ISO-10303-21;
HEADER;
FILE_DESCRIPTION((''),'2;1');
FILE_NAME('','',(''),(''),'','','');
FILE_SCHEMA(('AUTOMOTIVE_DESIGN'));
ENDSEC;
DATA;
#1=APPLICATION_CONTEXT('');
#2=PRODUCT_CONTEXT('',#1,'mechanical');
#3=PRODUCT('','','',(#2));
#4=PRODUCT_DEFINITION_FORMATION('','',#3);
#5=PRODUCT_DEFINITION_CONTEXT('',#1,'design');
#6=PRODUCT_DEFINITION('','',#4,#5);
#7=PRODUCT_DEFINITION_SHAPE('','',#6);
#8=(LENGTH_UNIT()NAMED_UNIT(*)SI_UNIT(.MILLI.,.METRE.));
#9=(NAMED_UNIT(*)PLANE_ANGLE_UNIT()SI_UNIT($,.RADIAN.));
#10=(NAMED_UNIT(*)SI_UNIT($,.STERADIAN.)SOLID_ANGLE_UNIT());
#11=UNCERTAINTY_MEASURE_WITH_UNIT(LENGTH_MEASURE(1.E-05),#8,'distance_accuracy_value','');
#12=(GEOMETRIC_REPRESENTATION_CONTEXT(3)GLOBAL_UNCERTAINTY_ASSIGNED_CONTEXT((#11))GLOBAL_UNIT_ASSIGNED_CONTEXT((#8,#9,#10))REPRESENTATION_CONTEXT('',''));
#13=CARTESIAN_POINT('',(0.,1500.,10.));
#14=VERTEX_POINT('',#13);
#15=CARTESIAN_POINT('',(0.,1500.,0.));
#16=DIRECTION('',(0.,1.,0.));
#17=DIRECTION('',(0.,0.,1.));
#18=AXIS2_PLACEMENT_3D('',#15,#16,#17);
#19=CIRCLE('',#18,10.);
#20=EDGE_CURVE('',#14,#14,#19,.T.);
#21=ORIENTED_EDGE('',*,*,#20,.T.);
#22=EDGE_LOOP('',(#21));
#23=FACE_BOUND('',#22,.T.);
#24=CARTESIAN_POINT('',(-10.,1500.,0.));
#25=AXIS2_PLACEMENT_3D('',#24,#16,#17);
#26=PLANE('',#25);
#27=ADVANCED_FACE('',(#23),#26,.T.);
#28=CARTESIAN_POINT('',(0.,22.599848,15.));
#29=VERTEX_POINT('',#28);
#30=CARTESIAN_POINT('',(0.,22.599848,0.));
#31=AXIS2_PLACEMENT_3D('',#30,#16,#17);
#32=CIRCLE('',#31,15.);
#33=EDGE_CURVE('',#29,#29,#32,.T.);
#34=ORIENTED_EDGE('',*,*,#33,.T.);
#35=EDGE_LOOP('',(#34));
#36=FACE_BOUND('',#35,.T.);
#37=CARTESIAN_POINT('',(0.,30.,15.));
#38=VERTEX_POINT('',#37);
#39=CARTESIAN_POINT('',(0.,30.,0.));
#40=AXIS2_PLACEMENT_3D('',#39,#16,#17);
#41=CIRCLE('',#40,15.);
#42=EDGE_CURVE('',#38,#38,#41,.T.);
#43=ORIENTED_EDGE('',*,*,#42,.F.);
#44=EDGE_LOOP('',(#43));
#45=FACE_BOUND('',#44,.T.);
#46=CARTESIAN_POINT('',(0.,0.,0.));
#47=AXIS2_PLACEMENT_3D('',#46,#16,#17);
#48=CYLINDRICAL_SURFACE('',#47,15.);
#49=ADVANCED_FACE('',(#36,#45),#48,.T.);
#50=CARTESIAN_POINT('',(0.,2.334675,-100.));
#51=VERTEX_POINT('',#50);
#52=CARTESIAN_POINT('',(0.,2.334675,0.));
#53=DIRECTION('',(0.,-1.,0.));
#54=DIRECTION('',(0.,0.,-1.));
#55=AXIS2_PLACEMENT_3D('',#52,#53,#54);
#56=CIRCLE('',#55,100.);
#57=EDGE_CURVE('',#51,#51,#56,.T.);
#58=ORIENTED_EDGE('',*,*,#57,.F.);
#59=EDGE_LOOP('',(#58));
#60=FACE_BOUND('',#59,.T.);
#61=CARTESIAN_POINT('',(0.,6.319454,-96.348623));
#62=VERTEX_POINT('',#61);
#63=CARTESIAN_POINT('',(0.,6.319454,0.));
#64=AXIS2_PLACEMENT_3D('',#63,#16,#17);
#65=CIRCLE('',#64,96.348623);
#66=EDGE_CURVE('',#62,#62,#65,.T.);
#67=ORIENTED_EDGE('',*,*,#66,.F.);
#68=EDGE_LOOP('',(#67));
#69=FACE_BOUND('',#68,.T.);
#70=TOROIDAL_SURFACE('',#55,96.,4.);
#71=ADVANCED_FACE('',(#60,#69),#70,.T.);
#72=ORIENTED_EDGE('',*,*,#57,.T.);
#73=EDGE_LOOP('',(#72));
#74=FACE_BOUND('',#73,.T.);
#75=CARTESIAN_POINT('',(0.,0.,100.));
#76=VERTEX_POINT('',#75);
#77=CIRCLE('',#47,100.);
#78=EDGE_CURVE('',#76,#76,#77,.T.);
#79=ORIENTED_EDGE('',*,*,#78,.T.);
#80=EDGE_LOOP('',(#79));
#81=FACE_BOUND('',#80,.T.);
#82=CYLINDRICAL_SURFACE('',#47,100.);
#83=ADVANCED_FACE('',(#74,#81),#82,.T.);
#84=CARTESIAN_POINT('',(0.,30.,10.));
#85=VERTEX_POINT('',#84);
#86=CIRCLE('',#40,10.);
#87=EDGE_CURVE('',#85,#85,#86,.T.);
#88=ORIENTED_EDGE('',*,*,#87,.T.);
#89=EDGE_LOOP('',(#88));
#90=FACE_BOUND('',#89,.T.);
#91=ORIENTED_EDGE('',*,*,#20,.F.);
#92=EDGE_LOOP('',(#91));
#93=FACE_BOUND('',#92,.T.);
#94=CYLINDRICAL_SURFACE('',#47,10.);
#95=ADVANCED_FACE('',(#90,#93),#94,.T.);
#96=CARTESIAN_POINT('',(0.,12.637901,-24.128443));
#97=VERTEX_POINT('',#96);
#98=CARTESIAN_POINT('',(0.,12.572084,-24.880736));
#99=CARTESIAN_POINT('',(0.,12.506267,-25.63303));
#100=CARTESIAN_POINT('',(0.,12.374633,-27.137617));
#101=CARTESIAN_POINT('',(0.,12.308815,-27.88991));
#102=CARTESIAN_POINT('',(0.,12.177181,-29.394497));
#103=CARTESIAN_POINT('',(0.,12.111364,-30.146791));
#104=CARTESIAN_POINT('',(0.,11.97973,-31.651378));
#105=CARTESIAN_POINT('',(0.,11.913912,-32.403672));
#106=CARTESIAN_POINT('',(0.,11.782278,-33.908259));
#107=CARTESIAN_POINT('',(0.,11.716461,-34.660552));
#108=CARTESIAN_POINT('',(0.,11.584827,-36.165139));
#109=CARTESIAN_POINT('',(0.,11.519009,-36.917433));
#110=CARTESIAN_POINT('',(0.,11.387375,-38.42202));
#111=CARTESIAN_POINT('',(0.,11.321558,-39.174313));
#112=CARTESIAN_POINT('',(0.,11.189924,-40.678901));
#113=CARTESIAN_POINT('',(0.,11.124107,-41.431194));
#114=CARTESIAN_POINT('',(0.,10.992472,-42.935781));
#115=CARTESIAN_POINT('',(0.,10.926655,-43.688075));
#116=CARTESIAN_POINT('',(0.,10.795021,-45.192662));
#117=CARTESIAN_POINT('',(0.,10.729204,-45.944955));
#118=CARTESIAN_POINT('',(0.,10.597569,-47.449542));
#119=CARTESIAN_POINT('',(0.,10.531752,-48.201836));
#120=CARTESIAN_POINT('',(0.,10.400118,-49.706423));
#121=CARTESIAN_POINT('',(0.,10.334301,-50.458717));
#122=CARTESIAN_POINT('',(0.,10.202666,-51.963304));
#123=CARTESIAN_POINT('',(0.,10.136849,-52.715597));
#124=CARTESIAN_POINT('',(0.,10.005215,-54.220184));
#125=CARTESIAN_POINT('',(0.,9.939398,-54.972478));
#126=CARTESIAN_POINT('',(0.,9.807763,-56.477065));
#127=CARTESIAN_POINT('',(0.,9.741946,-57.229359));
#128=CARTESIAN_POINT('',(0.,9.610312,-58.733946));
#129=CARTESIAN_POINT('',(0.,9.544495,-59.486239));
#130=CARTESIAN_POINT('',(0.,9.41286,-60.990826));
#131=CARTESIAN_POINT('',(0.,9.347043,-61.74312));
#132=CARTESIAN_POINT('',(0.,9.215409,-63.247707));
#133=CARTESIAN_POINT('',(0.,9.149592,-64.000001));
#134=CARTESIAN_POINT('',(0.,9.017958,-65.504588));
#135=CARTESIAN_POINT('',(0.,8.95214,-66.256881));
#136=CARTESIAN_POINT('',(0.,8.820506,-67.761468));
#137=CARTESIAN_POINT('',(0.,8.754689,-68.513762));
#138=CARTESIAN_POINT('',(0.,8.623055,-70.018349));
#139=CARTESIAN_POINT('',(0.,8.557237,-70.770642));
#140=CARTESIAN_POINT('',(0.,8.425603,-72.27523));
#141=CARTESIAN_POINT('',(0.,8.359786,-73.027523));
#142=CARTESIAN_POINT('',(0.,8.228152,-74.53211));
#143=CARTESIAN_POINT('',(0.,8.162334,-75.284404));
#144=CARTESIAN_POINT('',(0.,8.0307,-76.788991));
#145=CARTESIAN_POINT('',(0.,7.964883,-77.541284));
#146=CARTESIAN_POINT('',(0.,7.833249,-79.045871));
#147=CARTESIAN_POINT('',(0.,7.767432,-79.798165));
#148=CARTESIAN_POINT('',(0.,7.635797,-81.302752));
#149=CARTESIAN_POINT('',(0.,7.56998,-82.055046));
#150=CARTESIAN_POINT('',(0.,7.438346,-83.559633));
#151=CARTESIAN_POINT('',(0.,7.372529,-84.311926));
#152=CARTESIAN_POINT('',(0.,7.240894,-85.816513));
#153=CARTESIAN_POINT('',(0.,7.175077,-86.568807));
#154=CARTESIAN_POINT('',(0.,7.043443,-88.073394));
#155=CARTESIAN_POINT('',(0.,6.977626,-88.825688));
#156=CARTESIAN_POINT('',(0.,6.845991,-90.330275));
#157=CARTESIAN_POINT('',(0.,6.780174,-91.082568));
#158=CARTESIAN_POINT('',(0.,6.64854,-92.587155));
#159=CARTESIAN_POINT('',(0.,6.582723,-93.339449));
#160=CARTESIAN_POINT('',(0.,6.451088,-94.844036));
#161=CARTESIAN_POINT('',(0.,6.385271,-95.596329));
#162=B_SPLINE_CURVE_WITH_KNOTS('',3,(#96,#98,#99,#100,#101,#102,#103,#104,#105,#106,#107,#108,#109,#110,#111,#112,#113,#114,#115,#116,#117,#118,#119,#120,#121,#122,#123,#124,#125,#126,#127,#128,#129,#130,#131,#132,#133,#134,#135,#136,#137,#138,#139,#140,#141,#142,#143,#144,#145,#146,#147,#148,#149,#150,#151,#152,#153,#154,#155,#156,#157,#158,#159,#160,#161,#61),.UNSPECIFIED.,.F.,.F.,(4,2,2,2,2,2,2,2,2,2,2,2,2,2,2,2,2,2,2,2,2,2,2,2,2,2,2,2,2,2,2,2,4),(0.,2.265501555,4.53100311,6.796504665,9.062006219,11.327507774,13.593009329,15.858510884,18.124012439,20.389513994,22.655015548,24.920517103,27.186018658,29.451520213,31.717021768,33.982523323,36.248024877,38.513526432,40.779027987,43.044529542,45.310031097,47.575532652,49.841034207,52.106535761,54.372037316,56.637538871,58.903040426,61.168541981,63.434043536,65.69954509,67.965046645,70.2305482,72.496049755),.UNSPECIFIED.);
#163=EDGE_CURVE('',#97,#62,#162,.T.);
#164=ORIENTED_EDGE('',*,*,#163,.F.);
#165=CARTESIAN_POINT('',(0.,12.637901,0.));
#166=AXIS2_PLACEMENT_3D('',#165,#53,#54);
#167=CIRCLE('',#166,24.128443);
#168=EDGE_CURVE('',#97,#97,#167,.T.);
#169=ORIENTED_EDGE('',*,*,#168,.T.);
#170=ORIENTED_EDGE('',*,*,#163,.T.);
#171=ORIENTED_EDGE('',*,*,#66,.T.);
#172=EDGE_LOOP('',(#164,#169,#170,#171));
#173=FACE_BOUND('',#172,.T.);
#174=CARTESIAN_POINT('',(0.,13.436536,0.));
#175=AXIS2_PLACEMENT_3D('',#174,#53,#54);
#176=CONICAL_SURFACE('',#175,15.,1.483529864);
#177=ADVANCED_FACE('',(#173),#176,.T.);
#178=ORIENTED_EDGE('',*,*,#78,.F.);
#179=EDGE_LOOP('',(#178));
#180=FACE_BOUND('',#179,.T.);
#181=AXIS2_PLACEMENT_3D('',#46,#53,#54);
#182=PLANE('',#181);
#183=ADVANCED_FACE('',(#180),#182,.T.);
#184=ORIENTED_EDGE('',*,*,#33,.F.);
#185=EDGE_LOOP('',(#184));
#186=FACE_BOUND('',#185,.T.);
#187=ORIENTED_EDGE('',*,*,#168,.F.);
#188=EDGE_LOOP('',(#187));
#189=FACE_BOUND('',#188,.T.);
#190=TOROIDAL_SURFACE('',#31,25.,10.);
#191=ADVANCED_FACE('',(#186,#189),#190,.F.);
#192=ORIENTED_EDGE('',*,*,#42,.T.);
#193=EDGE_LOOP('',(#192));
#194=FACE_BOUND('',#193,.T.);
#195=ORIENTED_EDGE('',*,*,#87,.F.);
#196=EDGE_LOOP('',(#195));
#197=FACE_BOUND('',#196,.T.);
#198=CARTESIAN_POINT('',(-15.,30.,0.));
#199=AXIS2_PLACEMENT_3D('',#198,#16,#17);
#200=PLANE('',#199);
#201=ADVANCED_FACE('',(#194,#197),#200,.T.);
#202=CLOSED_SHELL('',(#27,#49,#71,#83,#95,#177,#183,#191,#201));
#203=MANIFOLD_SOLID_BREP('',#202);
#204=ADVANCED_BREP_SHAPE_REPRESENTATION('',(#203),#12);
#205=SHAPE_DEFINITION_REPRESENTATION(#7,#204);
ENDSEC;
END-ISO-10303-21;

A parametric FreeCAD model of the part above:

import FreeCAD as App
import Part
import Sketcher
Q = App.Units.Quantity


def edges_at(feature, points):
    """Names of the edges that pass closest to the given points."""
    edges = feature.Shape.Edges
    near = lambda p: min(range(len(edges)), key=lambda i: edges[i].distToShape(Part.Vertex(*p))[0])
    return sorted({f"Edge{near(p) + 1}" for p in points})


def add_polygon(sketch, points):
    """Adds a closed chain of lines whose ends are joined by coincident constraints."""
    first, n = sketch.GeometryCount, len(points)
    for a, b in zip(points, points[1:] + points[:1]):
        sketch.addGeometry(Part.LineSegment(App.Vector(*a, 0), App.Vector(*b, 0)), False)
    for i in range(n):
        sketch.addConstraint(Sketcher.Constraint("Coincident", first + i, 2, first + (i + 1) % n, 1))

doc = App.newDocument("Part")
body = doc.addObject("PartDesign::Body", "Body")

# Sketch on XY plane
sketch1 = body.newObject("Sketcher::SketchObject", "Sketch")
sketch1.AttachmentSupport = (doc.getObject("XY_Plane"), [""])
sketch1.MapMode = "FlatFace"
add_polygon(sketch1, [(-100, 0), (0, 0), (0, 1500), (-10, 1500), (-10, 30), (-15, 30), (-15, 13.436536), (-100, 6)])  # lines 0-7
sketch1.addConstraint(Sketcher.Constraint("Horizontal", 0))
sketch1.addConstraint(Sketcher.Constraint("Vertical", 1))
sketch1.addConstraint(Sketcher.Constraint("Horizontal", 2))
sketch1.addConstraint(Sketcher.Constraint("Vertical", 3))
sketch1.addConstraint(Sketcher.Constraint("Horizontal", 4))
sketch1.addConstraint(Sketcher.Constraint("Vertical", 5))
sketch1.addConstraint(Sketcher.Constraint("Vertical", 7))
sketch1.addConstraint(Sketcher.Constraint("Coincident", 0, 2, -1, 1))
sketch1.addConstraint(Sketcher.Constraint("DistanceX", 0, 1, 0, 2, Q("100 mm")))
sketch1.addConstraint(Sketcher.Constraint("DistanceX", 2, 2, 2, 1, Q("10 mm")))
sketch1.addConstraint(Sketcher.Constraint("DistanceX", 4, 2, 4, 1, Q("5 mm")))
sketch1.addConstraint(Sketcher.Constraint("DistanceY", 1, 1, 1, 2, Q("1500 mm")))
sketch1.addConstraint(Sketcher.Constraint("DistanceY", 3, 2, 3, 1, Q("1470 mm")))
sketch1.addConstraint(Sketcher.Constraint("DistanceY", 7, 2, 7, 1, Q("6 mm")))
sketch1.addConstraint(Sketcher.Constraint("Angle", 6, Q("-175 deg")))
revolution = body.newObject("PartDesign::Revolution", "Revolution")
revolution.Profile = sketch1
revolution.ReferenceAxis = (sketch1, ["V_Axis"])
revolution.Angle = 360
doc.recompute()

fillet = body.newObject("PartDesign::Fillet", "Fillet")
fillet.Base = (revolution, edges_at(revolution, [(0, 6, -100)]))
fillet.Radius = 4
doc.recompute()

fillet2 = body.newObject("PartDesign::Fillet", "Fillet001")
fillet2.Base = (fillet, edges_at(fillet, [(0, 13.437, -15)]))
fillet2.Radius = 10

doc.recompute()
